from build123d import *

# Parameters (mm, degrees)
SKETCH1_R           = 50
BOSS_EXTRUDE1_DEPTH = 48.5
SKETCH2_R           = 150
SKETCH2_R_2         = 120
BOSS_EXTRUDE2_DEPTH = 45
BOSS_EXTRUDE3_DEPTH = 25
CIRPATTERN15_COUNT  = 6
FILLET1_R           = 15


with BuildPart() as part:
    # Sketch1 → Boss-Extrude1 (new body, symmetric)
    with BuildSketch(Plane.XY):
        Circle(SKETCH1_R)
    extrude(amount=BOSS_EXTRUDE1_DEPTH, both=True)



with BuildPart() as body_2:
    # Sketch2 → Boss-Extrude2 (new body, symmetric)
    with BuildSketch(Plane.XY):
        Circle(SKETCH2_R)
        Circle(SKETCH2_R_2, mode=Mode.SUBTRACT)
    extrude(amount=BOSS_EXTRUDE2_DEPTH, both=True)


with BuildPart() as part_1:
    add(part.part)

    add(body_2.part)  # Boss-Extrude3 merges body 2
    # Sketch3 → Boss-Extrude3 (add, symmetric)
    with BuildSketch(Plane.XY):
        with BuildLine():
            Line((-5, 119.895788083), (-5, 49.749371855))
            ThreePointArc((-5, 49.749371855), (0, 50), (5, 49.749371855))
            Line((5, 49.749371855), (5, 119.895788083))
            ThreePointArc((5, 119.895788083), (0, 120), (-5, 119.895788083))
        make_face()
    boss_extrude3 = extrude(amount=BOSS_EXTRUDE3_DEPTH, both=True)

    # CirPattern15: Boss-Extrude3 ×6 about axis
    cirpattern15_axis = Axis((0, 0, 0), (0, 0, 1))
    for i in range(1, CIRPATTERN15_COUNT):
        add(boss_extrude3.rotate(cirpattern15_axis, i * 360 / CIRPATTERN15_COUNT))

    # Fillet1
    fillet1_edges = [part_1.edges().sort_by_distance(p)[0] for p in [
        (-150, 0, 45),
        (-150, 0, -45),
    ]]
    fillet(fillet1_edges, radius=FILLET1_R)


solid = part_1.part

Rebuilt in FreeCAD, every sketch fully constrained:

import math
import FreeCAD as App
import Part
import Sketcher
Q = App.Units.Quantity


def edges_at(feature, points):
    """Names of the edges that pass closest to the given points."""
    edges = feature.Shape.Edges
    near = lambda p: min(range(len(edges)), key=lambda i: edges[i].distToShape(Part.Vertex(*p))[0])
    return sorted({f"Edge{near(p) + 1}" for p in points})

doc = App.newDocument("Part")
body = doc.addObject("PartDesign::Body", "Body")

# Sketch on XY plane
sketch1 = body.newObject("Sketcher::SketchObject", "Sketch")
sketch1.AttachmentSupport = (doc.getObject("XY_Plane"), [""])
sketch1.MapMode = "FlatFace"
sketch1.addGeometry(Part.Circle(App.Vector(0, 0, 0), App.Vector(0, 0, 1), 50), False)
sketch1.addConstraint([
    Sketcher.Constraint("Coincident", 0, 3, -1, 1),
    Sketcher.Constraint("Diameter", 0, Q("100 mm")),
])
pad1 = body.newObject("PartDesign::Pad", "Pad")
pad1.Profile = sketch1
pad1.Length = 97
pad1.Midplane = True
body2 = doc.addObject("PartDesign::Body", "Body001")

# Sketch on XY plane
sketch2 = body2.newObject("Sketcher::SketchObject", "Sketch001")
sketch2.AttachmentSupport = (doc.getObject("XY_Plane001"), [""])
sketch2.MapMode = "FlatFace"
sketch2.addGeometry([
    Part.Circle(App.Vector(0, 0, 0), App.Vector(0, 0, 1), 150),
    Part.Circle(App.Vector(0, 0, 0), App.Vector(0, 0, 1), 120),
], False)
sketch2.addConstraint([
    Sketcher.Constraint("Coincident", 0, 3, -1, 1),
    Sketcher.Constraint("Coincident", 1, 3, -1, 1),
    Sketcher.Constraint("Diameter", 0, Q("300 mm")),
    Sketcher.Constraint("Diameter", 1, Q("240 mm")),
])
pad2 = body2.newObject("PartDesign::Pad", "Pad001")
pad2.Profile = sketch2
pad2.Length = 90
pad2.Midplane = True
body.AllowCompound = True
doc.recompute()

boolean = body.newObject("PartDesign::Boolean", "Boolean")
boolean.Type = "Fuse"
boolean.addObjects([body2])

# Sketch on XY plane
sketch3 = body.newObject("Sketcher::SketchObject", "Sketch002")
sketch3.AttachmentSupport = (doc.getObject("XY_Plane"), [""])
sketch3.MapMode = "FlatFace"
sketch3.addGeometry([
    Part.LineSegment(App.Vector(-5, 120, 0), App.Vector(-5, 50, 0)),
    Part.ArcOfCircle(Part.Circle(App.Vector(0, 0, 0), App.Vector(0, 0, 1), 50), math.radians(84.26), math.radians(95.74)),
    Part.LineSegment(App.Vector(5, 50, 0), App.Vector(5, 120, 0)),
    Part.ArcOfCircle(Part.Circle(App.Vector(0, 0, 0), App.Vector(0, 0, 1), 120), math.radians(87.61), math.radians(92.39)),
], False)
sketch3.addConstraint([
    Sketcher.Constraint("Coincident", 0, 2, 1, 2),
    Sketcher.Constraint("Coincident", 1, 1, 2, 1),
    Sketcher.Constraint("Coincident", 2, 2, 3, 1),
    Sketcher.Constraint("Coincident", 3, 2, 0, 1),
    Sketcher.Constraint("Vertical", 0),
    Sketcher.Constraint("Vertical", 2),
    Sketcher.Constraint("Coincident", 1, 3, -1, 1),
    Sketcher.Constraint("Coincident", 3, 3, -1, 1),
    Sketcher.Constraint("Horizontal", 0, 2, 1, 1),
    Sketcher.Constraint("Radius", 1, Q("50 mm")),
    Sketcher.Constraint("Radius", 3, Q("120 mm")),
    Sketcher.Constraint("DistanceX", 0, 2, -1, 1, Q("5 mm")),
])
pad3 = body.newObject("PartDesign::Pad", "Pad002")
pad3.Profile = sketch3
pad3.Length = 50
pad3.Midplane = True
doc.recompute()

polarpattern = body.newObject("PartDesign::PolarPattern", "PolarPattern")
polarpattern.Originals = [pad3]
polarpattern.Axis = (doc.getObject("Z_Axis"), [""])
polarpattern.Angle = 360
polarpattern.Occurrences = 6
body.Tip = polarpattern
doc.recompute()

fillet = body.newObject("PartDesign::Fillet", "Fillet")
fillet.Base = (polarpattern, edges_at(polarpattern, [(-150, 0, 45), (-150, 0, -45)]))
fillet.Radius = 15

doc.recompute()
